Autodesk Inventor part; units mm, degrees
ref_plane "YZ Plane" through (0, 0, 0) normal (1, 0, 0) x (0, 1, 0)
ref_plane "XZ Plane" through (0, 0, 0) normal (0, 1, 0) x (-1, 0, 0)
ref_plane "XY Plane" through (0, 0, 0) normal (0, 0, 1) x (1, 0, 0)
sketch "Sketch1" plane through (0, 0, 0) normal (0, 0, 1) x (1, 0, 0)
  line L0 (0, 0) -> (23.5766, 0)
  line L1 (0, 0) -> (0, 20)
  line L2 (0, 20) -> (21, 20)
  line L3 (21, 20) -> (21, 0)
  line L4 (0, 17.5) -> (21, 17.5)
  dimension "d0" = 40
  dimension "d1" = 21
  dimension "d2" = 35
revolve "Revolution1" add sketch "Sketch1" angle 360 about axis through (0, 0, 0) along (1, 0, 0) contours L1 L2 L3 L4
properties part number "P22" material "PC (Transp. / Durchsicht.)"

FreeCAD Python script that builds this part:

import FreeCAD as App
import Part
import Sketcher

V = App.Vector


def add_polygon(sketch, points):
    """Adds a closed chain of lines whose ends are joined by coincident constraints."""
    first, n = sketch.GeometryCount, len(points)
    for a, b in zip(points, points[1:] + points[:1]):
        sketch.addGeometry(Part.LineSegment(App.Vector(*a, 0), App.Vector(*b, 0)), False)
    for i in range(n):
        sketch.addConstraint(Sketcher.Constraint("Coincident", first + i, 2, first + (i + 1) % n, 1))

doc = App.newDocument("Part")
body = doc.addObject("PartDesign::Body", "Body")

# Sketch on XY plane
sketch1 = doc.addObject("Sketcher::SketchObject", "Sketch")
body.addObject(sketch1)
sketch1.AttachmentSupport = (doc.XY_Plane, [""])
sketch1.MapMode = "FlatFace"
add_polygon(sketch1, [(0, 20), (0, 17.5), (21, 17.5), (21, 20)])  # lines 0-3
sketch1.addConstraint(Sketcher.Constraint("Vertical", 0))
sketch1.addConstraint(Sketcher.Constraint("Horizontal", 1))
sketch1.addConstraint(Sketcher.Constraint("Vertical", 2))
sketch1.addConstraint(Sketcher.Constraint("Horizontal", 3))
sketch1.addConstraint(Sketcher.Constraint("PointOnObject", 0, 2, -2))
sketch1.addConstraint(Sketcher.Constraint("DistanceX", 1, 1, 1, 2, 21.0))
sketch1.addConstraint(Sketcher.Constraint("DistanceY", 0, 2, 0, 1, 2.5))
sketch1.addConstraint(Sketcher.Constraint("DistanceY", -1, 1, 2, 2, 20.0))
revolution = doc.addObject("PartDesign::Revolution", "Revolution")
body.addObject(revolution)
revolution.Profile = sketch1
revolution.ReferenceAxis = (sketch1, ["H_Axis"])
revolution.Angle = 360

doc.recompute()
